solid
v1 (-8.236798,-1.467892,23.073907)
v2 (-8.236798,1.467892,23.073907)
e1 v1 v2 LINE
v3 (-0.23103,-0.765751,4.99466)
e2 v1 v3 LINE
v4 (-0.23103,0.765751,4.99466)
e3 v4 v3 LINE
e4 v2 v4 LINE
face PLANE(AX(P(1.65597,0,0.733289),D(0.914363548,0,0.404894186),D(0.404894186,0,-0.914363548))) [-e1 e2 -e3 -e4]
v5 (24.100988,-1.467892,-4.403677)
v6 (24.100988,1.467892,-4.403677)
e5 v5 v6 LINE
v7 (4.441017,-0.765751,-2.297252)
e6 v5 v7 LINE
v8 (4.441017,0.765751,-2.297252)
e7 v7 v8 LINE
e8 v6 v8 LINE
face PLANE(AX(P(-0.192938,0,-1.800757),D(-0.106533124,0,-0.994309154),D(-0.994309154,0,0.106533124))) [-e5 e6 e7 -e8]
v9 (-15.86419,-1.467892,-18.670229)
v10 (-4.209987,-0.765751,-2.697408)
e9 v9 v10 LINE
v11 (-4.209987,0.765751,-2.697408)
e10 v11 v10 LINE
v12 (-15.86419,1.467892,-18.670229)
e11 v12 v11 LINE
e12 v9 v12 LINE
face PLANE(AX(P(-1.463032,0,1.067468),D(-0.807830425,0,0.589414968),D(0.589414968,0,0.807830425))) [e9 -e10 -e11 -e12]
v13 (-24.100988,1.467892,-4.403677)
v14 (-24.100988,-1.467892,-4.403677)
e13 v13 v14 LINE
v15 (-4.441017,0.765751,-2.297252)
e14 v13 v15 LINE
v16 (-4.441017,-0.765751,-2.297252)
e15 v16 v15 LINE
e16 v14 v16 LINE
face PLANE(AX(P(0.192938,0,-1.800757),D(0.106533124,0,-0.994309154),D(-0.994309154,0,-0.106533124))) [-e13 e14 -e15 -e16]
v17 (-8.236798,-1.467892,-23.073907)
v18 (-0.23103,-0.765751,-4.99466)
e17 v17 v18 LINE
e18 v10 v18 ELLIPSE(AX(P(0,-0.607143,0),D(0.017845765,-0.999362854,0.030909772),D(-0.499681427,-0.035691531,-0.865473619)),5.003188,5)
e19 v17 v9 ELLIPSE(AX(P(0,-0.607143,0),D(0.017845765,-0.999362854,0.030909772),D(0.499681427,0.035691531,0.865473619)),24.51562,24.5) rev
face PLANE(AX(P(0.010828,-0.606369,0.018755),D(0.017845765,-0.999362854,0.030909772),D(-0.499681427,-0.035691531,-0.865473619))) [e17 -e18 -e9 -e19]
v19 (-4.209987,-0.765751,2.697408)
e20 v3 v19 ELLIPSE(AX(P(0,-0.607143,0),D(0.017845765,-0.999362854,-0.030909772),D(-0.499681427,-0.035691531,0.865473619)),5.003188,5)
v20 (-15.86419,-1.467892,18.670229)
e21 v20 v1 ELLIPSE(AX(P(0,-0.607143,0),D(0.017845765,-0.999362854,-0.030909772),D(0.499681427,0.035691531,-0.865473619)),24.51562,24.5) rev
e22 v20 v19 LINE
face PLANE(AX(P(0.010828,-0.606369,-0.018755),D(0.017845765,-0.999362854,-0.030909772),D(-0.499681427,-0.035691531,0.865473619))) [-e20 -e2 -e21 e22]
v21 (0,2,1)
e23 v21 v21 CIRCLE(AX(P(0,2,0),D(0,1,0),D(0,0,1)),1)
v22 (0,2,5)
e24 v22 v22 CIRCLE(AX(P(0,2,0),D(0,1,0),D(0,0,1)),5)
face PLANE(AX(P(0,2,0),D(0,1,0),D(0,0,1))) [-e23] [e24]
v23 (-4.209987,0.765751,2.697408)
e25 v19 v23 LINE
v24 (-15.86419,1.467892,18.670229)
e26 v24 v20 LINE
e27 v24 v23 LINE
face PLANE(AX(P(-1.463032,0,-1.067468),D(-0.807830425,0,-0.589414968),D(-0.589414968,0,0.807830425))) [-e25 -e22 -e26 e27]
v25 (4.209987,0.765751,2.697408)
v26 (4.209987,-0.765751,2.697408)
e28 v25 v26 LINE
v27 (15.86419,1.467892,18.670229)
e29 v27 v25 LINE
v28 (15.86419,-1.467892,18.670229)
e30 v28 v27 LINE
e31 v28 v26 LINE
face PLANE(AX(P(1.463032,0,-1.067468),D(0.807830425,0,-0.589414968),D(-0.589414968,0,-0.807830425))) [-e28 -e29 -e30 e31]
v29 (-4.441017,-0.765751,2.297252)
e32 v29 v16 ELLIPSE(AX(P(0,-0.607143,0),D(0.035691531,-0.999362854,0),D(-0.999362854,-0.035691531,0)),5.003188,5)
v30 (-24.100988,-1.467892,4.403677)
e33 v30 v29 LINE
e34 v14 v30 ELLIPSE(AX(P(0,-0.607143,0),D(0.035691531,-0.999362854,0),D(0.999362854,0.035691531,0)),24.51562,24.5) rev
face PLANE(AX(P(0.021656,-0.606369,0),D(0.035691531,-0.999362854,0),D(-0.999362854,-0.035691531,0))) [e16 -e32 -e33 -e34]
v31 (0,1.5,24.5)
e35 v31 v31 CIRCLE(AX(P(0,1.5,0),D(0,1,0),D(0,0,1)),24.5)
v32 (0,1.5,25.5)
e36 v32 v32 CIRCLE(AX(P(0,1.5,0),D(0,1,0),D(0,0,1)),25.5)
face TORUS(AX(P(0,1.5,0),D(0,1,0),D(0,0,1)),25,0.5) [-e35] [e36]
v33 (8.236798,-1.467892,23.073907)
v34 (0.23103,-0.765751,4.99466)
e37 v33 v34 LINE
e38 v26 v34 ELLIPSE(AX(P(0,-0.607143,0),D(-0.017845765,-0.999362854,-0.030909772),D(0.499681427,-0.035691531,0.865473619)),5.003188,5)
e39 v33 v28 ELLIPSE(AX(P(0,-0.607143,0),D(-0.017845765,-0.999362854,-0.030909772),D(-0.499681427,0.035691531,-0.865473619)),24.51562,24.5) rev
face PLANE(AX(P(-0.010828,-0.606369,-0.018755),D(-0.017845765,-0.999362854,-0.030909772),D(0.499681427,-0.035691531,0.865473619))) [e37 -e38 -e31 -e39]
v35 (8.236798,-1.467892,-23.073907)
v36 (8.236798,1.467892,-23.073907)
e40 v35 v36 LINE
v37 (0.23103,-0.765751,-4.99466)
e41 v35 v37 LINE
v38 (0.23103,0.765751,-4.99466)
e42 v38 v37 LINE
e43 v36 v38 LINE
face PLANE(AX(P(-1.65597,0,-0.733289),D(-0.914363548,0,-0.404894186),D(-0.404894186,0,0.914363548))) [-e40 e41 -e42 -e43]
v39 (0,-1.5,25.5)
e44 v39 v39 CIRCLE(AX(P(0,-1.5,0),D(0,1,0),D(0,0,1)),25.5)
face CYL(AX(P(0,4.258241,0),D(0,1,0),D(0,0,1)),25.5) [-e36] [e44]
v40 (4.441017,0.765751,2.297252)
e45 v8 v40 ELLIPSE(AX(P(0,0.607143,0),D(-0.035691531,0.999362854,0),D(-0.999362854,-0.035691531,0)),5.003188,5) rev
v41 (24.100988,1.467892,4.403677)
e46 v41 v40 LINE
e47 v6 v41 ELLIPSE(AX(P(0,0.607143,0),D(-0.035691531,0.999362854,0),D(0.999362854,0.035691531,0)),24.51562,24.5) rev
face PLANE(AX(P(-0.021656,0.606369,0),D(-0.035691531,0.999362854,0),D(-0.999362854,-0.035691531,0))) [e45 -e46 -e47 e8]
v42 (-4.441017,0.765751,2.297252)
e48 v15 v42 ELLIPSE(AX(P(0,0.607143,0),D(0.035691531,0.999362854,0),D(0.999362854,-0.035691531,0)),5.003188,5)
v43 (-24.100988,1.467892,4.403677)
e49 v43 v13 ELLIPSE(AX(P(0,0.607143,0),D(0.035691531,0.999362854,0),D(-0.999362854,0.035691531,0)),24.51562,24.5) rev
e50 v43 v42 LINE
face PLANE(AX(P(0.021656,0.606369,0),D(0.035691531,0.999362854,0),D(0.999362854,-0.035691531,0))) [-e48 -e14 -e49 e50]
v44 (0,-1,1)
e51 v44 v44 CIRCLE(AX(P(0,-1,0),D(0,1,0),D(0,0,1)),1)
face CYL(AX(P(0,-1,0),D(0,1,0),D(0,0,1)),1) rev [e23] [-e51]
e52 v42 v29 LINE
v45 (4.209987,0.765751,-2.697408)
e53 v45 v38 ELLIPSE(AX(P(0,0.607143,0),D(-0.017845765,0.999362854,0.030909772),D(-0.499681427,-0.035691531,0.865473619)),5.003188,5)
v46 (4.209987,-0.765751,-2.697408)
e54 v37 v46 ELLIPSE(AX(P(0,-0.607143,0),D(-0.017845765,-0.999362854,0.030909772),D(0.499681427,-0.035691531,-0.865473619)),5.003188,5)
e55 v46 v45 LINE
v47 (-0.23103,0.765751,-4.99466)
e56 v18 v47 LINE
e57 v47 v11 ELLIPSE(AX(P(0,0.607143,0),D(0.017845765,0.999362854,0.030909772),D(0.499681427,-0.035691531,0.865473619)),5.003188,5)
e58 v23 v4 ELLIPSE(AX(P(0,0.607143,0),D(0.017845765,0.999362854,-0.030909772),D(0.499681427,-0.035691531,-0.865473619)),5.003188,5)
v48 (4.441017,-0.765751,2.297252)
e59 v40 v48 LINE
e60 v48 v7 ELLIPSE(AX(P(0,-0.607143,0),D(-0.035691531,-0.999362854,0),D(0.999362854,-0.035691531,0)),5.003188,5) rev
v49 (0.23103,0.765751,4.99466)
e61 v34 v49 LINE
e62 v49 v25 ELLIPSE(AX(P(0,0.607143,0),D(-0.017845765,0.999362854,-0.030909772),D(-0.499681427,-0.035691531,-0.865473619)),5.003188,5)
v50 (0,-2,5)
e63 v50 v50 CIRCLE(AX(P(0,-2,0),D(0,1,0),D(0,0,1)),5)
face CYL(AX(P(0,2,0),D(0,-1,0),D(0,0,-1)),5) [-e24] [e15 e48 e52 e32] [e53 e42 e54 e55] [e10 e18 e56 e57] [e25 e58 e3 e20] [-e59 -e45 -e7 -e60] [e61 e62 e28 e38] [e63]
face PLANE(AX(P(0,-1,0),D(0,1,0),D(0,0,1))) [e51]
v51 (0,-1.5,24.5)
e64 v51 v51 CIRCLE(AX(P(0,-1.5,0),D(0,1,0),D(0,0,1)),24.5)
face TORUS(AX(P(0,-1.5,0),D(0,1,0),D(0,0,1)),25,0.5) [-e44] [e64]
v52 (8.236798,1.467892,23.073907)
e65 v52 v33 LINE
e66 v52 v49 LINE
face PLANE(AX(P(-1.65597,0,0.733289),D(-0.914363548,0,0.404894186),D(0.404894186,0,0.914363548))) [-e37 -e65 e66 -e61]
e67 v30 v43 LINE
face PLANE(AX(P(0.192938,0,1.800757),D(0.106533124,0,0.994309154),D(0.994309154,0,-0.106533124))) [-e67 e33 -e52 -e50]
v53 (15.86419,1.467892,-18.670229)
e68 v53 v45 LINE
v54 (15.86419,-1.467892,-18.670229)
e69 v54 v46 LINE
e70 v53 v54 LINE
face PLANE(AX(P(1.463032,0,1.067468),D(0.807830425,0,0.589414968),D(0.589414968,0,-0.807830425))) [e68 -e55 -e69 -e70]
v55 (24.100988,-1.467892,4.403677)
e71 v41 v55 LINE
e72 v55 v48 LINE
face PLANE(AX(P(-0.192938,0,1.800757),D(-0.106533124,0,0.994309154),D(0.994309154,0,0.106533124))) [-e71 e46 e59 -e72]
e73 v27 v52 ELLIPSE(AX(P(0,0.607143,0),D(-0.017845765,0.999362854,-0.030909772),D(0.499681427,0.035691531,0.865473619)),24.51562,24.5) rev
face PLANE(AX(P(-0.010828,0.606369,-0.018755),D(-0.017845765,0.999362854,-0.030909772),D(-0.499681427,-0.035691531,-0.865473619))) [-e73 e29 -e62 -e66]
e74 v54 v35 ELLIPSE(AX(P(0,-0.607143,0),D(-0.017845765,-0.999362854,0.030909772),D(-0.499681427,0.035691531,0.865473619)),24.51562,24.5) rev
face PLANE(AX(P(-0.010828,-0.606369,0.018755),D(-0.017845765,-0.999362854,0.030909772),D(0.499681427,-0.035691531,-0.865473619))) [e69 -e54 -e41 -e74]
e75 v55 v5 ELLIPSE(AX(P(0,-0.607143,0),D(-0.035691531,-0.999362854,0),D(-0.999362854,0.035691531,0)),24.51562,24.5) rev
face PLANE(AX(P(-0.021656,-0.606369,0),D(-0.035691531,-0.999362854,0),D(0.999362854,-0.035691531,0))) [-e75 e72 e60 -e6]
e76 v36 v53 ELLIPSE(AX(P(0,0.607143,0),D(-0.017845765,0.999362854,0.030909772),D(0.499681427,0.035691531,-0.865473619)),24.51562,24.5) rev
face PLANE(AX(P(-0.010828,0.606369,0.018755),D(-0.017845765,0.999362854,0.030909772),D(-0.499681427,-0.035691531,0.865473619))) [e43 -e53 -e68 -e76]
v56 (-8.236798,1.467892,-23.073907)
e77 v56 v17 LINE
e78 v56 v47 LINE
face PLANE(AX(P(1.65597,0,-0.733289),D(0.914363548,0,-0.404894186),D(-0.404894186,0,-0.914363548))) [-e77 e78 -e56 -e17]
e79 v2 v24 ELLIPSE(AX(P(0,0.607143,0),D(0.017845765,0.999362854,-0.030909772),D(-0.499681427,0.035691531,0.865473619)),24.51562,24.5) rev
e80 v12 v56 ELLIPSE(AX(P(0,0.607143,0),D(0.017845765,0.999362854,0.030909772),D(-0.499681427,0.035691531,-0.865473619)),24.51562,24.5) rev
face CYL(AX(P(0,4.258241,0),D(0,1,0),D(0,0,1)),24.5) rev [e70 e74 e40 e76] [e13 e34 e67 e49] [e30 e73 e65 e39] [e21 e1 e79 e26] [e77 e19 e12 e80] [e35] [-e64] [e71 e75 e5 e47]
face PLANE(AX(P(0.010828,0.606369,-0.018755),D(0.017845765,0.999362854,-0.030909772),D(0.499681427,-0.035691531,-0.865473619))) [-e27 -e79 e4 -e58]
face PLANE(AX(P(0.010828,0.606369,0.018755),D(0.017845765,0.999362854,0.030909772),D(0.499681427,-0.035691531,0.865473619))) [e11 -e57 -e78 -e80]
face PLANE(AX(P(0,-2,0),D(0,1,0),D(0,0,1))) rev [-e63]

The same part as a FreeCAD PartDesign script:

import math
import FreeCAD as App
import Part
import Sketcher

doc = App.newDocument("Part")
body = doc.addObject("PartDesign::Body", "Body")

sketch1 = doc.addObject("Sketcher::SketchObject", "Sketch")
body.addObject(sketch1)
sketch1.AttachmentSupport = (doc.XY_Plane, [""])
sketch1.MapMode = "FlatFace"
sketch1.addGeometry([
    Part.LineSegment(App.Vector(25.5, -1.5, 0), App.Vector(25.5, 1.5, 0)),
    Part.ArcOfCircle(Part.Circle(App.Vector(25, 1.5, 0), App.Vector(0, 0, 1), 0.5), math.radians(0), math.radians(180)),
    Part.LineSegment(App.Vector(24.5, 1.5, 0), App.Vector(24.5, -1.5, 0)),
    Part.ArcOfCircle(Part.Circle(App.Vector(25, -1.5, 0), App.Vector(0, 0, 1), 0.5), math.radians(180), math.radians(360)),
], False)
sketch1.addConstraint([
    Sketcher.Constraint("Tangent", 0, 2, 1, 1),
    Sketcher.Constraint("Tangent", 1, 2, 2, 1),
    Sketcher.Constraint("Tangent", 2, 2, 3, 1),
    Sketcher.Constraint("Tangent", 3, 2, 0, 1),
    Sketcher.Constraint("Vertical", 0),
    Sketcher.Constraint("Vertical", 2),
    Sketcher.Constraint("Radius", 1, 0.5),
    Sketcher.Constraint("DistanceY", 0, 1, 0, 2, 3.0),
    Sketcher.Constraint("DistanceX", -1, 1, 1, 3, 25.0),
    Sketcher.Constraint("DistanceY", -1, 1, 1, 3, 1.5),
])
revolution = doc.addObject("PartDesign::Revolution", "Revolution")
body.addObject(revolution)
revolution.Profile = sketch1
revolution.ReferenceAxis = (sketch1, ["V_Axis"])
revolution.Angle = 360
body2 = doc.addObject("PartDesign::Body", "Body001")

sketch2 = doc.addObject("Sketcher::SketchObject", "Sketch001")
body2.addObject(sketch2)
sketch2.AttachmentSupport = (doc.getObject("XZ_Plane001"), [""])
sketch2.MapMode = "FlatFace"
sketch2.addGeometry(Part.Circle(App.Vector(0, 0, 0), App.Vector(0, 0, 1), 5), False)
sketch2.addConstraint([
    Sketcher.Constraint("Coincident", 0, 3, -1, 1),
    Sketcher.Constraint("Diameter", 0, 10.0),
])
pad1 = doc.addObject("PartDesign::Pad", "Pad")
body2.addObject(pad1)
pad1.Profile = sketch2
pad1.Type = "TwoLengths"
pad1.Length = 2
pad1.Length2 = 2
pad1.Reversed = True
body.AllowCompound = True
doc.recompute()

boolean = doc.addObject("PartDesign::Boolean", "Boolean")
body.addObject(boolean)
boolean.Type = "Fuse"
boolean.addObjects([body2])

sketch3 = doc.addObject("Sketcher::SketchObject", "Sketch002")
body.addObject(sketch3)
sketch3.AttachmentSupport = (doc.YZ_Plane, [""])
sketch3.MapMode = "FlatFace"
sketch3.AttachmentOffset = App.Placement(App.Vector(0, 0, 25), App.Rotation())
sketch3.addGeometry([
    Part.LineSegment(App.Vector(-1.5, 4.5, 0), App.Vector(-1.5, -4.5, 0)),
    Part.LineSegment(App.Vector(-1.5, -4.5, 0), App.Vector(1.5, -4.5, 0)),
    Part.LineSegment(App.Vector(1.5, -4.5, 0), App.Vector(1.5, 4.5, 0)),
    Part.LineSegment(App.Vector(1.5, 4.5, 0), App.Vector(-1.5, 4.5, 0)),
], False)
sketch3.addConstraint([
    Sketcher.Constraint("Coincident", 0, 2, 1, 1),
    Sketcher.Constraint("Coincident", 1, 2, 2, 1),
    Sketcher.Constraint("Coincident", 2, 2, 3, 1),
    Sketcher.Constraint("Coincident", 3, 2, 0, 1),
    Sketcher.Constraint("Vertical", 0),
    Sketcher.Constraint("Horizontal", 1),
    Sketcher.Constraint("Vertical", 2),
    Sketcher.Constraint("Horizontal", 3),
    Sketcher.Constraint("Symmetric", 0, 2, 2, 2, -1, 1),
    Sketcher.Constraint("DistanceX", 1, 1, 1, 2, 3.0),
    Sketcher.Constraint("DistanceY", 0, 2, 0, 1, 9.0),
])

sketch4 = doc.addObject("Sketcher::SketchObject", "Sketch003")
body.addObject(sketch4)
sketch4.AttachmentSupport = (doc.YZ_Plane, [""])
sketch4.MapMode = "FlatFace"
sketch4.AttachmentOffset = App.Placement(App.Vector(0, 0, 4), App.Rotation())
sketch4.addGeometry([
    Part.LineSegment(App.Vector(-0.8, 2.2, 0), App.Vector(-0.8, -2.2, 0)),
    Part.LineSegment(App.Vector(-0.8, -2.2, 0), App.Vector(0.8, -2.2, 0)),
    Part.LineSegment(App.Vector(0.8, -2.2, 0), App.Vector(0.8, 2.2, 0)),
    Part.LineSegment(App.Vector(0.8, 2.2, 0), App.Vector(-0.8, 2.2, 0)),
], False)
sketch4.addConstraint([
    Sketcher.Constraint("Coincident", 0, 2, 1, 1),
    Sketcher.Constraint("Coincident", 1, 2, 2, 1),
    Sketcher.Constraint("Coincident", 2, 2, 3, 1),
    Sketcher.Constraint("Coincident", 3, 2, 0, 1),
    Sketcher.Constraint("Vertical", 0),
    Sketcher.Constraint("Horizontal", 1),
    Sketcher.Constraint("Vertical", 2),
    Sketcher.Constraint("Horizontal", 3),
    Sketcher.Constraint("Symmetric", 0, 2, 2, 2, -1, 1),
    Sketcher.Constraint("DistanceX", 1, 1, 1, 2, 1.5),
    Sketcher.Constraint("DistanceY", 0, 2, 0, 1, 4.5),
])

additiveloft = doc.addObject("PartDesign::AdditiveLoft", "AdditiveLoft")
body.addObject(additiveloft)
additiveloft.Profile = sketch3
additiveloft.Sections = [sketch4]
doc.recompute()

polarpattern = doc.addObject("PartDesign::PolarPattern", "PolarPattern")
body.addObject(polarpattern)
polarpattern.Originals = [additiveloft]
polarpattern.Axis = (doc.Y_Axis, [""])
polarpattern.Angle = 360
polarpattern.Occurrences = 6
body.Tip = polarpattern

sketch5 = doc.addObject("Sketcher::SketchObject", "Sketch004")
body.addObject(sketch5)
sketch5.AttachmentSupport = (doc.XZ_Plane, [""])
sketch5.MapMode = "FlatFace"
sketch5.AttachmentOffset = App.Placement(App.Vector(0, 0, -2), App.Rotation())
sketch5.addGeometry(Part.Circle(App.Vector(0, 0, 0), App.Vector(0, 0, 1), 1), False)
sketch5.addConstraint([
    Sketcher.Constraint("Coincident", 0, 3, -1, 1),
    Sketcher.Constraint("Diameter", 0, 2.0),
])
pocket1 = doc.addObject("PartDesign::Pocket", "Pocket")
body.addObject(pocket1)
pocket1.Profile = sketch5
pocket1.Length = 3
pocket1.Reversed = True

doc.recompute()
